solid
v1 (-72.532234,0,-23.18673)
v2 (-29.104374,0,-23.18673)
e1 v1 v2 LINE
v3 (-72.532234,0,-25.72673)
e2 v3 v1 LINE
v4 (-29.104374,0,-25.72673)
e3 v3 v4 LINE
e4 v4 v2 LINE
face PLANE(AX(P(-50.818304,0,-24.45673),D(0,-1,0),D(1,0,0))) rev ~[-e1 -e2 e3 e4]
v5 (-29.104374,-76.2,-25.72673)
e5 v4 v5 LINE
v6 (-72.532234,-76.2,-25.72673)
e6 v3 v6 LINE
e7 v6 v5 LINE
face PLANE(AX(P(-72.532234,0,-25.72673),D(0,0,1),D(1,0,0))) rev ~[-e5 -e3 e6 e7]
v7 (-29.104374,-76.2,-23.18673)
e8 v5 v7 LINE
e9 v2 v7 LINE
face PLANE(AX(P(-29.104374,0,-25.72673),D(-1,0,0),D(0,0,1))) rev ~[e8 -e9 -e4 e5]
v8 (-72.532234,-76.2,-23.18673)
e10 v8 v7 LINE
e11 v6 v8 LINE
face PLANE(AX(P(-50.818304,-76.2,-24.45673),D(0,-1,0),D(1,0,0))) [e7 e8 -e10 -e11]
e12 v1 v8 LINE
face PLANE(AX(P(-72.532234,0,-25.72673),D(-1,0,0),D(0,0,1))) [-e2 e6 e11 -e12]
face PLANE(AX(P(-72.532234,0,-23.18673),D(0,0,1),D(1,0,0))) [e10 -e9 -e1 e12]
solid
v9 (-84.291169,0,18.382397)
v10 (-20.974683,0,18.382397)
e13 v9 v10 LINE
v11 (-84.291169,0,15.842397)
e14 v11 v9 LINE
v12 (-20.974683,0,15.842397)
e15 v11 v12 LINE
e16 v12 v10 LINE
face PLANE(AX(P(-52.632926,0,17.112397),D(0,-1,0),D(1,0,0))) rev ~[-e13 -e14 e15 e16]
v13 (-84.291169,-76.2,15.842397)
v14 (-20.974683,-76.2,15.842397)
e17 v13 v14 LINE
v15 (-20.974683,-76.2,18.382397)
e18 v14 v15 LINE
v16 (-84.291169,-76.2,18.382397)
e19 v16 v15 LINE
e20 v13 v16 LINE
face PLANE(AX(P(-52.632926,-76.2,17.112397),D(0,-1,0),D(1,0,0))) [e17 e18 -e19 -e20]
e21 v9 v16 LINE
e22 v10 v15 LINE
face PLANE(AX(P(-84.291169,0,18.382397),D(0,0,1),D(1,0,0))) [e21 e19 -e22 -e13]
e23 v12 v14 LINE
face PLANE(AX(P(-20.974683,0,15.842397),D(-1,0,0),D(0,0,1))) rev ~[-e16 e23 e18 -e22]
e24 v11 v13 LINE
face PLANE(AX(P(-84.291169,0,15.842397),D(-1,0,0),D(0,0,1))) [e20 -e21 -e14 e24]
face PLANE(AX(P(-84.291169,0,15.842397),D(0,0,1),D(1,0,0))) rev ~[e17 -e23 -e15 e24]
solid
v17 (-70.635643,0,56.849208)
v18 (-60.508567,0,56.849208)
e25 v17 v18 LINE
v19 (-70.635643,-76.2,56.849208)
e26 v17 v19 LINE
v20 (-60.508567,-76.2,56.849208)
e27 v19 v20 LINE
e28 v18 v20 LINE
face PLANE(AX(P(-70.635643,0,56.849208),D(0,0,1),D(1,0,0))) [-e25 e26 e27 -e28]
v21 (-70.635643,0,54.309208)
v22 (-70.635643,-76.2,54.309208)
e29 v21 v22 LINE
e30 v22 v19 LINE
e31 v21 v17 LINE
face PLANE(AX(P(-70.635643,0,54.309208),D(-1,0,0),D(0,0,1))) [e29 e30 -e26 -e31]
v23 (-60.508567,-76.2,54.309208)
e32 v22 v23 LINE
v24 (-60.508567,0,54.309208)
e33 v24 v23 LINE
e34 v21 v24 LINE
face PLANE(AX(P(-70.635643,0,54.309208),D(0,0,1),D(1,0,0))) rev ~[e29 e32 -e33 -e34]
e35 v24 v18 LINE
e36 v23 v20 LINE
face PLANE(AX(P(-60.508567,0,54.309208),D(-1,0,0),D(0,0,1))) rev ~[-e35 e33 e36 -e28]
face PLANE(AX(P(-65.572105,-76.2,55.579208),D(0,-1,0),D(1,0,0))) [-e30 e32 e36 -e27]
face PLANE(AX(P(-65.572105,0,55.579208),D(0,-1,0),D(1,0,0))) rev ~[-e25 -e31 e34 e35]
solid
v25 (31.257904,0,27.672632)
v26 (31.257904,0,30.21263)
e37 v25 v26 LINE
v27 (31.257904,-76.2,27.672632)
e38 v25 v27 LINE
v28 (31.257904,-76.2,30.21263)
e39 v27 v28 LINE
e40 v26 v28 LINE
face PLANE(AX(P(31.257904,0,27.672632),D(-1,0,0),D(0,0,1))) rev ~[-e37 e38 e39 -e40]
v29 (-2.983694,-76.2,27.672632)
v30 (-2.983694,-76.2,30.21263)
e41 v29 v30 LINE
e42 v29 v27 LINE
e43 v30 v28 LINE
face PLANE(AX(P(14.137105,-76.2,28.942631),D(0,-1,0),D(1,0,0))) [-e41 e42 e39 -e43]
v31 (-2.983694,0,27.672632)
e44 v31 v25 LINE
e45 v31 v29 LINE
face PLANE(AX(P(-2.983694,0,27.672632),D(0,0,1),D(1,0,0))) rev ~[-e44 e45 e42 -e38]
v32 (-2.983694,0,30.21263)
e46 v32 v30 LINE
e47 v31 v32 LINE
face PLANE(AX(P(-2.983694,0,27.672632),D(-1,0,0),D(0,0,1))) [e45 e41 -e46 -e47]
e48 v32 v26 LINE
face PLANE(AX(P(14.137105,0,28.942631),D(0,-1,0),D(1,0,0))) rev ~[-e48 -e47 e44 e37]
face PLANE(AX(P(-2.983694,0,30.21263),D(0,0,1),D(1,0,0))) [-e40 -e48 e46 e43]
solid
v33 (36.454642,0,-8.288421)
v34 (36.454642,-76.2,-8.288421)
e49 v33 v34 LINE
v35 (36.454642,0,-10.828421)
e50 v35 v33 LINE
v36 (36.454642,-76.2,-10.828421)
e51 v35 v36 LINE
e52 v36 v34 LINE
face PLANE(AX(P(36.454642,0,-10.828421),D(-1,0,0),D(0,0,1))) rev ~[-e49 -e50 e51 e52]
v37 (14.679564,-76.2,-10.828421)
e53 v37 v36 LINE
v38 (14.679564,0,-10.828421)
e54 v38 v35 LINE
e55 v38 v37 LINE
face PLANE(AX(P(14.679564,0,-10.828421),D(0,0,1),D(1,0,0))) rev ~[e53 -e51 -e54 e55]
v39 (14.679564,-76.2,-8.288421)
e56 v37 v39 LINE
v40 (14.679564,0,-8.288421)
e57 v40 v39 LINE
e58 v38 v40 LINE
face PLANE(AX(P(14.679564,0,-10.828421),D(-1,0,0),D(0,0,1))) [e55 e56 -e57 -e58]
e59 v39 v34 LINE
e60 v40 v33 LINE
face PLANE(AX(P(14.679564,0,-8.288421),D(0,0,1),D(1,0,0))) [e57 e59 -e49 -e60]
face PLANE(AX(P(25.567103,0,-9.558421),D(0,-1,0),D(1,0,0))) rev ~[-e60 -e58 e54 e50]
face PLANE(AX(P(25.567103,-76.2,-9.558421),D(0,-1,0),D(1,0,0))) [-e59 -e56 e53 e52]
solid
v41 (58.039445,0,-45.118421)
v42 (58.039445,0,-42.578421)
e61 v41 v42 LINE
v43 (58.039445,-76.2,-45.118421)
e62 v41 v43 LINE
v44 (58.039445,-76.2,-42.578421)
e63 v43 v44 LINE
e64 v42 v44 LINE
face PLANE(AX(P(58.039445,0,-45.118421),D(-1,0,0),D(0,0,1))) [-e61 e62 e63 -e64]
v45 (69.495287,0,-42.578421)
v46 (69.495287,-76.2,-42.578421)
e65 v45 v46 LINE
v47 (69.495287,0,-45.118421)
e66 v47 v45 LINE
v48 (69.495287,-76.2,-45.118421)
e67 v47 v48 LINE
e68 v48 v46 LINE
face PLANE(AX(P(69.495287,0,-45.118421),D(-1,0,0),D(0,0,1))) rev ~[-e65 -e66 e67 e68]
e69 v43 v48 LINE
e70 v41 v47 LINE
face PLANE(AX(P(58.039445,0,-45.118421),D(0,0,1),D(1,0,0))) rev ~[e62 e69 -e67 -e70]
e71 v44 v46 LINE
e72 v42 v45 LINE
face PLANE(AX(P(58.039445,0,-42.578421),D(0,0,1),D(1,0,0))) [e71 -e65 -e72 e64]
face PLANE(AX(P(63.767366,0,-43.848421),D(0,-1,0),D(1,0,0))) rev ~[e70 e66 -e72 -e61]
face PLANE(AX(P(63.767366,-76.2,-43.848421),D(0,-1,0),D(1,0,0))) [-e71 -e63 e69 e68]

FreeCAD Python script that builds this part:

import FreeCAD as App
import Part
import Sketcher
Q = App.Units.Quantity


def add_polygon(sketch, points):
    """Adds a closed chain of lines whose ends are joined by coincident constraints."""
    first, n = sketch.GeometryCount, len(points)
    for a, b in zip(points, points[1:] + points[:1]):
        sketch.addGeometry(Part.LineSegment(App.Vector(*a, 0), App.Vector(*b, 0)), False)
    for i in range(n):
        sketch.addConstraint(Sketcher.Constraint("Coincident", first + i, 2, first + (i + 1) % n, 1))

doc = App.newDocument("Part")
body = doc.addObject("PartDesign::Body", "Body")
body.AllowCompound = True

# Sketch on XZ plane
sketch1 = doc.addObject("Sketcher::SketchObject", "Sketch")
body.addObject(sketch1)
sketch1.AttachmentSupport = (doc.XZ_Plane, [""])
sketch1.MapMode = "FlatFace"
add_polygon(sketch1, [(-72.5, -23.2), (-72.5, -25.7), (-29.1, -25.7), (-29.1, -23.2)])  # lines 0-3
add_polygon(sketch1, [(-84.3, 18.4), (-84.3, 15.8), (-21, 15.8), (-21, 18.4)])  # lines 4-7
add_polygon(sketch1, [(-3, 30.2), (-3, 27.7), (31.3, 27.7), (31.3, 30.2)])  # lines 8-11
add_polygon(sketch1, [(58, -42.6), (58, -45.1), (69.5, -45.1), (69.5, -42.6)])  # lines 12-15
add_polygon(sketch1, [(14.7, -8.3), (14.7, -10.8), (36.5, -10.8), (36.5, -8.3)])  # lines 16-19
add_polygon(sketch1, [(-70.6, 56.8), (-70.6, 54.3), (-60.5, 54.3), (-60.5, 56.8)])  # lines 20-23
sketch1.addConstraint(Sketcher.Constraint("Vertical", 0))
sketch1.addConstraint(Sketcher.Constraint("Horizontal", 1))
sketch1.addConstraint(Sketcher.Constraint("Vertical", 2))
sketch1.addConstraint(Sketcher.Constraint("Horizontal", 3))
sketch1.addConstraint(Sketcher.Constraint("Vertical", 4))
sketch1.addConstraint(Sketcher.Constraint("Horizontal", 5))
sketch1.addConstraint(Sketcher.Constraint("Vertical", 6))
sketch1.addConstraint(Sketcher.Constraint("Horizontal", 7))
sketch1.addConstraint(Sketcher.Constraint("Vertical", 8))
sketch1.addConstraint(Sketcher.Constraint("Horizontal", 9))
sketch1.addConstraint(Sketcher.Constraint("Vertical", 10))
sketch1.addConstraint(Sketcher.Constraint("Horizontal", 11))
sketch1.addConstraint(Sketcher.Constraint("Vertical", 12))
sketch1.addConstraint(Sketcher.Constraint("Horizontal", 13))
sketch1.addConstraint(Sketcher.Constraint("Vertical", 14))
sketch1.addConstraint(Sketcher.Constraint("Horizontal", 15))
sketch1.addConstraint(Sketcher.Constraint("Vertical", 16))
sketch1.addConstraint(Sketcher.Constraint("Horizontal", 17))
sketch1.addConstraint(Sketcher.Constraint("Vertical", 18))
sketch1.addConstraint(Sketcher.Constraint("Horizontal", 19))
sketch1.addConstraint(Sketcher.Constraint("Vertical", 20))
sketch1.addConstraint(Sketcher.Constraint("Horizontal", 21))
sketch1.addConstraint(Sketcher.Constraint("Vertical", 22))
sketch1.addConstraint(Sketcher.Constraint("Horizontal", 23))
sketch1.addConstraint(Sketcher.Constraint("Equal", 2, 4))
sketch1.addConstraint(Sketcher.Constraint("Equal", 6, 8))
sketch1.addConstraint(Sketcher.Constraint("Equal", 10, 12))
sketch1.addConstraint(Sketcher.Constraint("Equal", 14, 16))
sketch1.addConstraint(Sketcher.Constraint("Equal", 18, 20))
sketch1.addConstraint(Sketcher.Constraint("DistanceY", 0, 2, 0, 1, Q("0.1 in")))
sketch1.addConstraint(Sketcher.Constraint("DistanceY", 15, 2, 17, 2, Q("1.25 in")))
sketch1.addConstraint(Sketcher.Constraint("DistanceX", 1, 1, 1, 2, Q("43.427859 mm")))
sketch1.addConstraint(Sketcher.Constraint("DistanceX", 13, 1, 13, 2, Q("11.455841 mm")))
sketch1.addConstraint(Sketcher.Constraint("DistanceX", 17, 1, 17, 2, Q("21.775078 mm")))
sketch1.addConstraint(Sketcher.Constraint("DistanceX", 7, 2, 21, 2, Q("23.782602 mm")))
sketch1.addConstraint(Sketcher.Constraint("DistanceX", 5, 1, 5, 2, Q("63.316487 mm")))
sketch1.addConstraint(Sketcher.Constraint("DistanceX", 9, 1, 9, 2, Q("34.241598 mm")))
sketch1.addConstraint(Sketcher.Constraint("DistanceX", 21, 1, 21, 2, Q("10.127075 mm")))
sketch1.addConstraint(Sketcher.Constraint("DistanceY", 0, 2, -1, 1, Q("25.72673 mm")))
sketch1.addConstraint(Sketcher.Constraint("DistanceX", 4, 2, -1, 1, Q("84.291169 mm")))
sketch1.addConstraint(Sketcher.Constraint("DistanceY", -1, 1, 8, 2, Q("27.672632 mm")))
sketch1.addConstraint(Sketcher.Constraint("DistanceY", 12, 2, -1, 1, Q("45.118421 mm")))
sketch1.addConstraint(Sketcher.Constraint("DistanceX", 2, 2, 5, 2, Q("8.129692 mm")))
sketch1.addConstraint(Sketcher.Constraint("DistanceX", 6, 2, 8, 2, Q("17.990989 mm")))
sketch1.addConstraint(Sketcher.Constraint("DistanceX", 9, 2, 12, 2, Q("26.781541 mm")))
sketch1.addConstraint(Sketcher.Constraint("DistanceX", 16, 2, 9, 2, Q("16.57834 mm")))
sketch1.addConstraint(Sketcher.Constraint("DistanceY", 16, 2, 5, 2, Q("26.670818 mm")))
sketch1.addConstraint(Sketcher.Constraint("DistanceY", 7, 2, 20, 2, Q("35.926811 mm")))
pad1 = doc.addObject("PartDesign::Pad", "Pad")
body.addObject(pad1)
pad1.Profile = sketch1
pad1.Length = Q("3 in")

doc.recompute()
